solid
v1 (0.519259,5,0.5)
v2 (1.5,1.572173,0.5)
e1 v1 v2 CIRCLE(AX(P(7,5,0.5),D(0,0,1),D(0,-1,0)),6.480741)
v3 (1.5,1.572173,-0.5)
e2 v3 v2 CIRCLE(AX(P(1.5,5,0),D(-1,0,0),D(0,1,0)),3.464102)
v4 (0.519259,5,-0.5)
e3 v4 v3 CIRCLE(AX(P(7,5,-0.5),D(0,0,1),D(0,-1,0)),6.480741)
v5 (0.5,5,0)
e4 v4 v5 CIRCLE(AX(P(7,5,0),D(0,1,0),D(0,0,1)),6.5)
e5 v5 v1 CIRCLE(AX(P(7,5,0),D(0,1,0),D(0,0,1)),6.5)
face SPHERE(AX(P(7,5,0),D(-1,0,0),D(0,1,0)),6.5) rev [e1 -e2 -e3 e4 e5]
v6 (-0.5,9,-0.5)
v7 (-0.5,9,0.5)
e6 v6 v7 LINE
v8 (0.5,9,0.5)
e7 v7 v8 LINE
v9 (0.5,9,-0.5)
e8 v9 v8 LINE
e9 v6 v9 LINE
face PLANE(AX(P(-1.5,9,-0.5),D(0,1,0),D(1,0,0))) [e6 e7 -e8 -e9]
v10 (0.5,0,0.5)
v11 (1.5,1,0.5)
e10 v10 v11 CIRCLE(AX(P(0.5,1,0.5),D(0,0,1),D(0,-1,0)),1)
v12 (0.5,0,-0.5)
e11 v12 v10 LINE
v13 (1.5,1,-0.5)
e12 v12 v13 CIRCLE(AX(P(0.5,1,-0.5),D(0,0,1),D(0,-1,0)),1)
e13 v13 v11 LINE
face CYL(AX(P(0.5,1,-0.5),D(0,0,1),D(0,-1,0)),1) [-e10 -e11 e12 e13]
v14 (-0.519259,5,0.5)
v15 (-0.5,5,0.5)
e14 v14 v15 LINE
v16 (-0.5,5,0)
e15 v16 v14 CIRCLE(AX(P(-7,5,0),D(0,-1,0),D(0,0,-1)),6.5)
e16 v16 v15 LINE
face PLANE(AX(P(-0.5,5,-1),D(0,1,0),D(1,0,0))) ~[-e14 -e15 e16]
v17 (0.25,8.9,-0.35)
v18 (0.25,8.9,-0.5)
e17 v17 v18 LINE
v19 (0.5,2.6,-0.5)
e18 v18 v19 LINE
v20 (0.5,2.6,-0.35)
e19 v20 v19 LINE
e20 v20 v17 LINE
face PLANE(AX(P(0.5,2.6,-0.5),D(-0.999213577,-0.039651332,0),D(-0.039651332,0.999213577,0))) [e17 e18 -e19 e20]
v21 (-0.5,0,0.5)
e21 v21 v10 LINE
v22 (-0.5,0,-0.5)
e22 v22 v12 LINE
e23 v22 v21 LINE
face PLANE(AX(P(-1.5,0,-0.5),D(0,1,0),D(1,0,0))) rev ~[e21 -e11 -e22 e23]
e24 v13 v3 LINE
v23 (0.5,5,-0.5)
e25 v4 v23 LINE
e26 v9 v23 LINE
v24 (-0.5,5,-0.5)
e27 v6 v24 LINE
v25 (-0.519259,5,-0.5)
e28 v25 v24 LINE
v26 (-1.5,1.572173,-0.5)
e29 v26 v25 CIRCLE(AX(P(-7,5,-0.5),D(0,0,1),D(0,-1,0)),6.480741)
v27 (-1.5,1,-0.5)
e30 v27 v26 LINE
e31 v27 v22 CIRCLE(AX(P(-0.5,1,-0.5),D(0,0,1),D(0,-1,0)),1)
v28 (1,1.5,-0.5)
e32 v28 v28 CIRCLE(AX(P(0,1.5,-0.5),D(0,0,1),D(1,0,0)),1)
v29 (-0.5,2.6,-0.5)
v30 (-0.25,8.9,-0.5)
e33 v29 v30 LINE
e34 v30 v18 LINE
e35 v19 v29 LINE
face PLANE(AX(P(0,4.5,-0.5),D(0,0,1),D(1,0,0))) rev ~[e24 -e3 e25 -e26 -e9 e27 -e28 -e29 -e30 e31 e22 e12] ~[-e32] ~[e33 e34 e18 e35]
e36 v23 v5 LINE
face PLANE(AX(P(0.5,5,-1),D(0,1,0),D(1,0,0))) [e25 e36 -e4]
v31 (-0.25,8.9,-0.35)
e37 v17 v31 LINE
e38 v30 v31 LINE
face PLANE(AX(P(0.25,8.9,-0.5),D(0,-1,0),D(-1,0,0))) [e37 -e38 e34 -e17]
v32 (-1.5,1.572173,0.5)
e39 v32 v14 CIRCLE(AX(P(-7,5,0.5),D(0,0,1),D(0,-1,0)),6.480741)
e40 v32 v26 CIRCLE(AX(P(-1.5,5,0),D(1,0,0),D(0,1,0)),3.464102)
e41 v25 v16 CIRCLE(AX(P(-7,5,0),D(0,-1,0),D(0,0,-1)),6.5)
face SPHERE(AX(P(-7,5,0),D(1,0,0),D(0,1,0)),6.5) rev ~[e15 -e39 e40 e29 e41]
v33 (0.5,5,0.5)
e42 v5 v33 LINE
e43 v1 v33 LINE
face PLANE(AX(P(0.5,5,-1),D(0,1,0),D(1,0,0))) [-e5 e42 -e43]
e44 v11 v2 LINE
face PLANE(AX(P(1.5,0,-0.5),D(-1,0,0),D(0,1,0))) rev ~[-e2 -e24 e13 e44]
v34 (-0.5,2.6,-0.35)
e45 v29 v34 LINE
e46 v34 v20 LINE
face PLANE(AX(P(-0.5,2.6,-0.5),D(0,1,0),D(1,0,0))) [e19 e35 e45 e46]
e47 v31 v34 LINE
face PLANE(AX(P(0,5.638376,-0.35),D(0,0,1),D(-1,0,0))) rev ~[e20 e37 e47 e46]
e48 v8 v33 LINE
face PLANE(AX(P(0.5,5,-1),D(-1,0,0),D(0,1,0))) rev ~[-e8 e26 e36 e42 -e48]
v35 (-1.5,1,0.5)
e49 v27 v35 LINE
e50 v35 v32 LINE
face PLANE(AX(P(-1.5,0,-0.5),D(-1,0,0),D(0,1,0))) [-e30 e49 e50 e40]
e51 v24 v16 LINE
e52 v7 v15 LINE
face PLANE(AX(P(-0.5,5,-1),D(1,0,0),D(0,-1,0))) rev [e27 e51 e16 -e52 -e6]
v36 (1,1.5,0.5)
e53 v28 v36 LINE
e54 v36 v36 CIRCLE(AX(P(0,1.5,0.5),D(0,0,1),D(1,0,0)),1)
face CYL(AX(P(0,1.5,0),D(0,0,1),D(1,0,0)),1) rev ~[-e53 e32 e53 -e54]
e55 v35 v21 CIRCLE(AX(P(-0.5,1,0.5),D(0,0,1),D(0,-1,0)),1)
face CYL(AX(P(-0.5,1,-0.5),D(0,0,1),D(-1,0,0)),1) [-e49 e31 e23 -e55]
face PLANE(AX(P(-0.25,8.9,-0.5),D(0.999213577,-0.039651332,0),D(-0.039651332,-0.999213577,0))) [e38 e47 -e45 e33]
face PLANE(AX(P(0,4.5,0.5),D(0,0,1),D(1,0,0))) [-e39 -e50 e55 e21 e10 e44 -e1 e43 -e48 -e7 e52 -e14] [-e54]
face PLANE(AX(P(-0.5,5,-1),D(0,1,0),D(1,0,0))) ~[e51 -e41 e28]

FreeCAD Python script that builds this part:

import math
import FreeCAD as App
import Part
import Sketcher

V = App.Vector
Q = App.Units.Quantity


def edges_at(feature, points):
    """Names of the edges that pass closest to the given points."""
    edges = feature.Shape.Edges
    near = lambda p: min(range(len(edges)), key=lambda i: edges[i].distToShape(Part.Vertex(*p))[0])
    return sorted({f"Edge{near(p) + 1}" for p in points})


def add_polygon(sketch, points):
    """Adds a closed chain of lines whose ends are joined by coincident constraints."""
    first, n = sketch.GeometryCount, len(points)
    for a, b in zip(points, points[1:] + points[:1]):
        sketch.addGeometry(Part.LineSegment(App.Vector(*a, 0), App.Vector(*b, 0)), False)
    for i in range(n):
        sketch.addConstraint(Sketcher.Constraint("Coincident", first + i, 2, first + (i + 1) % n, 1))

doc = App.newDocument("Part")
params = doc.addObject("Spreadsheet::Sheet", "Params")
for row, (alias, value) in enumerate([
    ("sketch1_width", "3 mm"),
    ("sketch1_height", "9 mm"),
    ("pad1_length", "1 mm"),
    ("sketch2_diameter", "2 mm"),
    ("pocket1_length", "6 mm"),
    ("sketch3_radius", "6.5 mm"),
    ("groove_angle", "360 deg"),
    ("sketch4_width", "2 mm"),
    ("sketch4_height", "4 mm"),
    ("pocket2_length", "2 mm"),
    ("sketch5_width", "1 mm"),
    ("sketch5_width2", "0.5 mm"),
    ("pocket3_length", "0.3 mm"),
    ("fillet_radius", "1 mm"),
], start=1):
    params.set(f"A{row}", alias)
    params.set(f"B{row}", "=" + value)
    params.setAlias(f"B{row}", alias)

body = doc.addObject("PartDesign::Body", "Body")

# Sketch on XY plane
sketch1 = body.newObject("Sketcher::SketchObject", "Sketch")
sketch1.AttachmentSupport = (doc.getObject("XY_Plane"), [""])
sketch1.MapMode = "FlatFace"
sketch1.AttachmentOffset = App.Placement(V(0, 0, -0.5), App.Rotation())
add_polygon(sketch1, [(-1.5, 9), (-1.5, 0), (1.5, 0), (1.5, 9)])  # lines 0-3
sketch1.addConstraint(Sketcher.Constraint("Vertical", 0))
sketch1.addConstraint(Sketcher.Constraint("Horizontal", 1))
sketch1.addConstraint(Sketcher.Constraint("Vertical", 2))
sketch1.addConstraint(Sketcher.Constraint("Horizontal", 3))
sketch1.addConstraint(Sketcher.Constraint("Symmetric", 0, 2, 1, 2, -1, 1))
sketch1.addConstraint(Sketcher.Constraint("DistanceX", 1, 1, 1, 2, Q("3 mm")))
sketch1.addConstraint(Sketcher.Constraint("DistanceY", 0, 2, 0, 1, Q("9 mm")))
sketch1.setExpression("Constraints[9]", "Params.sketch1_width")
sketch1.setExpression("Constraints[10]", "Params.sketch1_height")
pad1 = body.newObject("PartDesign::Pad", "Pad")
pad1.Profile = sketch1
pad1.setExpression("Length", "Params.pad1_length")

# Sketch on XY plane
sketch2 = body.newObject("Sketcher::SketchObject", "Sketch001")
sketch2.AttachmentSupport = (doc.getObject("XY_Plane"), [""])
sketch2.MapMode = "FlatFace"
sketch2.addGeometry(Part.Circle(V(0, 1.5, 0), V(0, 0, 1), 1), False)
sketch2.addConstraint(Sketcher.Constraint("PointOnObject", 0, 3, -2))
sketch2.addConstraint(Sketcher.Constraint("Diameter", 0, Q("2 mm")))
sketch2.addConstraint(Sketcher.Constraint("DistanceY", -1, 1, 0, 3, Q("1.5 mm")))
sketch2.setExpression("Constraints[1]", "Params.sketch2_diameter")
pocket1 = body.newObject("PartDesign::Pocket", "Pocket")
pocket1.Profile = sketch2
pocket1.setExpression("Length", "Params.pocket1_length")
pocket1.Midplane = True

# Sketch on XY plane
sketch3 = body.newObject("Sketcher::SketchObject", "Sketch002")
sketch3.AttachmentSupport = (doc.getObject("XY_Plane"), [""])
sketch3.MapMode = "FlatFace"
sketch3.addGeometry(Part.ArcOfCircle(Part.Circle(V(-7, 5, 0), V(0, 0, 1), 6), math.radians(0), math.radians(180)), False)
sketch3.addGeometry(Part.LineSegment(V(0, 5, 0), V(-14, 5, 0)), False)
sketch3.addGeometry(Part.LineSegment(V(-14, 5, 0), V(0, 5, 0)), True)  # axis
sketch3.addConstraint(Sketcher.Constraint("Coincident", 0, 1, 1, 1))
sketch3.addConstraint(Sketcher.Constraint("Coincident", 1, 2, 0, 2))
sketch3.addConstraint(Sketcher.Constraint("Horizontal", 1))
sketch3.addConstraint(Sketcher.Constraint("Horizontal", 2))
sketch3.addConstraint(Sketcher.Constraint("Coincident", 2, 1, 1, 2))
sketch3.addConstraint(Sketcher.Constraint("Equal", 1, 2))
sketch3.addConstraint(Sketcher.Constraint("Radius", 0, Q("6.5 mm")))
sketch3.addConstraint(Sketcher.Constraint("DistanceX", 0, 3, -1, 1, Q("7 mm")))
sketch3.addConstraint(Sketcher.Constraint("DistanceY", -1, 1, 0, 3, Q("5 mm")))
sketch3.addConstraint(Sketcher.Constraint("DistanceY", -1, 1, 0, 1, Q("5 mm")))
sketch3.setExpression("Constraints[6]", "Params.sketch3_radius")
groove = body.newObject("PartDesign::Groove", "Groove")
groove.Profile = sketch3
groove.ReferenceAxis = (sketch3, ["Axis0"])
groove.setExpression("Angle", "Params.groove_angle")
doc.recompute()

mirrored = body.newObject("PartDesign::Mirrored", "Mirrored")
mirrored.Originals = [groove]
mirrored.MirrorPlane = (doc.getObject("YZ_Plane"), [""])
body.Tip = mirrored

# Sketch on XY plane
sketch4 = body.newObject("Sketcher::SketchObject", "Sketch003")
sketch4.AttachmentSupport = (doc.getObject("XY_Plane"), [""])
sketch4.MapMode = "FlatFace"
sketch4.AttachmentOffset = App.Placement(V(0, 0, -1), App.Rotation())
add_polygon(sketch4, [(0.5, 9), (0.5, 5), (2.5, 5), (2.5, 9)])  # lines 0-3
sketch4.addConstraint(Sketcher.Constraint("Vertical", 0))
sketch4.addConstraint(Sketcher.Constraint("Horizontal", 1))
sketch4.addConstraint(Sketcher.Constraint("Vertical", 2))
sketch4.addConstraint(Sketcher.Constraint("Horizontal", 3))
sketch4.addConstraint(Sketcher.Constraint("DistanceX", 1, 1, 1, 2, Q("2 mm")))
sketch4.addConstraint(Sketcher.Constraint("DistanceY", 0, 2, 0, 1, Q("4 mm")))
sketch4.addConstraint(Sketcher.Constraint("DistanceY", -1, 1, 0, 2, Q("5 mm")))
sketch4.addConstraint(Sketcher.Constraint("DistanceX", -1, 1, 0, 2, Q("0.5 mm")))
sketch4.setExpression("Constraints[8]", "Params.sketch4_width")
sketch4.setExpression("Constraints[9]", "Params.sketch4_height")
pocket2 = body.newObject("PartDesign::Pocket", "Pocket001")
pocket2.Profile = sketch4
pocket2.setExpression("Length", "Params.pocket2_length")
pocket2.Reversed = True
doc.recompute()

mirrored2 = body.newObject("PartDesign::Mirrored", "Mirrored001")
mirrored2.Originals = [pocket2]
mirrored2.MirrorPlane = (doc.getObject("YZ_Plane"), [""])
body.Tip = mirrored2

# Sketch on XY plane
sketch5 = body.newObject("Sketcher::SketchObject", "Sketch004")
sketch5.AttachmentSupport = (doc.getObject("XY_Plane"), [""])
sketch5.MapMode = "FlatFace"
sketch5.AttachmentOffset = App.Placement(V(0, 0, -0.5), App.Rotation())
add_polygon(sketch5, [(-0.2, 8.9), (0.2, 8.9), (0.5, 2.6), (-0.5, 2.6)])  # lines 0-3
sketch5.addConstraint(Sketcher.Constraint("Horizontal", 0))
sketch5.addConstraint(Sketcher.Constraint("Horizontal", 2))
sketch5.addConstraint(Sketcher.Constraint("Equal", 1, 3))
sketch5.addConstraint(Sketcher.Constraint("DistanceX", 2, 2, 2, 1, Q("1 mm")))
sketch5.addConstraint(Sketcher.Constraint("DistanceX", 0, 1, 0, 2, Q("0.5 mm")))
sketch5.addConstraint(Sketcher.Constraint("DistanceY", -1, 1, 0, 2, Q("8.9 mm")))
sketch5.addConstraint(Sketcher.Constraint("DistanceX", -1, 1, 1, 2, Q("0.5 mm")))
sketch5.addConstraint(Sketcher.Constraint("DistanceY", -1, 1, 1, 2, Q("2.6 mm")))
sketch5.setExpression("Constraints[7]", "Params.sketch5_width")
sketch5.setExpression("Constraints[8]", "Params.sketch5_width2")
pocket3 = body.newObject("PartDesign::Pocket", "Pocket002")
pocket3.Profile = sketch5
pocket3.setExpression("Length", "Params.pocket3_length")
pocket3.Midplane = True
doc.recompute()

fillet = body.newObject("PartDesign::Fillet", "Fillet")
fillet.Base = (pocket3, edges_at(pocket3, [(-1.5, 0, 0), (1.5, 0, 0)]))
fillet.setExpression("Radius", "Params.fillet_radius")

doc.recompute()
